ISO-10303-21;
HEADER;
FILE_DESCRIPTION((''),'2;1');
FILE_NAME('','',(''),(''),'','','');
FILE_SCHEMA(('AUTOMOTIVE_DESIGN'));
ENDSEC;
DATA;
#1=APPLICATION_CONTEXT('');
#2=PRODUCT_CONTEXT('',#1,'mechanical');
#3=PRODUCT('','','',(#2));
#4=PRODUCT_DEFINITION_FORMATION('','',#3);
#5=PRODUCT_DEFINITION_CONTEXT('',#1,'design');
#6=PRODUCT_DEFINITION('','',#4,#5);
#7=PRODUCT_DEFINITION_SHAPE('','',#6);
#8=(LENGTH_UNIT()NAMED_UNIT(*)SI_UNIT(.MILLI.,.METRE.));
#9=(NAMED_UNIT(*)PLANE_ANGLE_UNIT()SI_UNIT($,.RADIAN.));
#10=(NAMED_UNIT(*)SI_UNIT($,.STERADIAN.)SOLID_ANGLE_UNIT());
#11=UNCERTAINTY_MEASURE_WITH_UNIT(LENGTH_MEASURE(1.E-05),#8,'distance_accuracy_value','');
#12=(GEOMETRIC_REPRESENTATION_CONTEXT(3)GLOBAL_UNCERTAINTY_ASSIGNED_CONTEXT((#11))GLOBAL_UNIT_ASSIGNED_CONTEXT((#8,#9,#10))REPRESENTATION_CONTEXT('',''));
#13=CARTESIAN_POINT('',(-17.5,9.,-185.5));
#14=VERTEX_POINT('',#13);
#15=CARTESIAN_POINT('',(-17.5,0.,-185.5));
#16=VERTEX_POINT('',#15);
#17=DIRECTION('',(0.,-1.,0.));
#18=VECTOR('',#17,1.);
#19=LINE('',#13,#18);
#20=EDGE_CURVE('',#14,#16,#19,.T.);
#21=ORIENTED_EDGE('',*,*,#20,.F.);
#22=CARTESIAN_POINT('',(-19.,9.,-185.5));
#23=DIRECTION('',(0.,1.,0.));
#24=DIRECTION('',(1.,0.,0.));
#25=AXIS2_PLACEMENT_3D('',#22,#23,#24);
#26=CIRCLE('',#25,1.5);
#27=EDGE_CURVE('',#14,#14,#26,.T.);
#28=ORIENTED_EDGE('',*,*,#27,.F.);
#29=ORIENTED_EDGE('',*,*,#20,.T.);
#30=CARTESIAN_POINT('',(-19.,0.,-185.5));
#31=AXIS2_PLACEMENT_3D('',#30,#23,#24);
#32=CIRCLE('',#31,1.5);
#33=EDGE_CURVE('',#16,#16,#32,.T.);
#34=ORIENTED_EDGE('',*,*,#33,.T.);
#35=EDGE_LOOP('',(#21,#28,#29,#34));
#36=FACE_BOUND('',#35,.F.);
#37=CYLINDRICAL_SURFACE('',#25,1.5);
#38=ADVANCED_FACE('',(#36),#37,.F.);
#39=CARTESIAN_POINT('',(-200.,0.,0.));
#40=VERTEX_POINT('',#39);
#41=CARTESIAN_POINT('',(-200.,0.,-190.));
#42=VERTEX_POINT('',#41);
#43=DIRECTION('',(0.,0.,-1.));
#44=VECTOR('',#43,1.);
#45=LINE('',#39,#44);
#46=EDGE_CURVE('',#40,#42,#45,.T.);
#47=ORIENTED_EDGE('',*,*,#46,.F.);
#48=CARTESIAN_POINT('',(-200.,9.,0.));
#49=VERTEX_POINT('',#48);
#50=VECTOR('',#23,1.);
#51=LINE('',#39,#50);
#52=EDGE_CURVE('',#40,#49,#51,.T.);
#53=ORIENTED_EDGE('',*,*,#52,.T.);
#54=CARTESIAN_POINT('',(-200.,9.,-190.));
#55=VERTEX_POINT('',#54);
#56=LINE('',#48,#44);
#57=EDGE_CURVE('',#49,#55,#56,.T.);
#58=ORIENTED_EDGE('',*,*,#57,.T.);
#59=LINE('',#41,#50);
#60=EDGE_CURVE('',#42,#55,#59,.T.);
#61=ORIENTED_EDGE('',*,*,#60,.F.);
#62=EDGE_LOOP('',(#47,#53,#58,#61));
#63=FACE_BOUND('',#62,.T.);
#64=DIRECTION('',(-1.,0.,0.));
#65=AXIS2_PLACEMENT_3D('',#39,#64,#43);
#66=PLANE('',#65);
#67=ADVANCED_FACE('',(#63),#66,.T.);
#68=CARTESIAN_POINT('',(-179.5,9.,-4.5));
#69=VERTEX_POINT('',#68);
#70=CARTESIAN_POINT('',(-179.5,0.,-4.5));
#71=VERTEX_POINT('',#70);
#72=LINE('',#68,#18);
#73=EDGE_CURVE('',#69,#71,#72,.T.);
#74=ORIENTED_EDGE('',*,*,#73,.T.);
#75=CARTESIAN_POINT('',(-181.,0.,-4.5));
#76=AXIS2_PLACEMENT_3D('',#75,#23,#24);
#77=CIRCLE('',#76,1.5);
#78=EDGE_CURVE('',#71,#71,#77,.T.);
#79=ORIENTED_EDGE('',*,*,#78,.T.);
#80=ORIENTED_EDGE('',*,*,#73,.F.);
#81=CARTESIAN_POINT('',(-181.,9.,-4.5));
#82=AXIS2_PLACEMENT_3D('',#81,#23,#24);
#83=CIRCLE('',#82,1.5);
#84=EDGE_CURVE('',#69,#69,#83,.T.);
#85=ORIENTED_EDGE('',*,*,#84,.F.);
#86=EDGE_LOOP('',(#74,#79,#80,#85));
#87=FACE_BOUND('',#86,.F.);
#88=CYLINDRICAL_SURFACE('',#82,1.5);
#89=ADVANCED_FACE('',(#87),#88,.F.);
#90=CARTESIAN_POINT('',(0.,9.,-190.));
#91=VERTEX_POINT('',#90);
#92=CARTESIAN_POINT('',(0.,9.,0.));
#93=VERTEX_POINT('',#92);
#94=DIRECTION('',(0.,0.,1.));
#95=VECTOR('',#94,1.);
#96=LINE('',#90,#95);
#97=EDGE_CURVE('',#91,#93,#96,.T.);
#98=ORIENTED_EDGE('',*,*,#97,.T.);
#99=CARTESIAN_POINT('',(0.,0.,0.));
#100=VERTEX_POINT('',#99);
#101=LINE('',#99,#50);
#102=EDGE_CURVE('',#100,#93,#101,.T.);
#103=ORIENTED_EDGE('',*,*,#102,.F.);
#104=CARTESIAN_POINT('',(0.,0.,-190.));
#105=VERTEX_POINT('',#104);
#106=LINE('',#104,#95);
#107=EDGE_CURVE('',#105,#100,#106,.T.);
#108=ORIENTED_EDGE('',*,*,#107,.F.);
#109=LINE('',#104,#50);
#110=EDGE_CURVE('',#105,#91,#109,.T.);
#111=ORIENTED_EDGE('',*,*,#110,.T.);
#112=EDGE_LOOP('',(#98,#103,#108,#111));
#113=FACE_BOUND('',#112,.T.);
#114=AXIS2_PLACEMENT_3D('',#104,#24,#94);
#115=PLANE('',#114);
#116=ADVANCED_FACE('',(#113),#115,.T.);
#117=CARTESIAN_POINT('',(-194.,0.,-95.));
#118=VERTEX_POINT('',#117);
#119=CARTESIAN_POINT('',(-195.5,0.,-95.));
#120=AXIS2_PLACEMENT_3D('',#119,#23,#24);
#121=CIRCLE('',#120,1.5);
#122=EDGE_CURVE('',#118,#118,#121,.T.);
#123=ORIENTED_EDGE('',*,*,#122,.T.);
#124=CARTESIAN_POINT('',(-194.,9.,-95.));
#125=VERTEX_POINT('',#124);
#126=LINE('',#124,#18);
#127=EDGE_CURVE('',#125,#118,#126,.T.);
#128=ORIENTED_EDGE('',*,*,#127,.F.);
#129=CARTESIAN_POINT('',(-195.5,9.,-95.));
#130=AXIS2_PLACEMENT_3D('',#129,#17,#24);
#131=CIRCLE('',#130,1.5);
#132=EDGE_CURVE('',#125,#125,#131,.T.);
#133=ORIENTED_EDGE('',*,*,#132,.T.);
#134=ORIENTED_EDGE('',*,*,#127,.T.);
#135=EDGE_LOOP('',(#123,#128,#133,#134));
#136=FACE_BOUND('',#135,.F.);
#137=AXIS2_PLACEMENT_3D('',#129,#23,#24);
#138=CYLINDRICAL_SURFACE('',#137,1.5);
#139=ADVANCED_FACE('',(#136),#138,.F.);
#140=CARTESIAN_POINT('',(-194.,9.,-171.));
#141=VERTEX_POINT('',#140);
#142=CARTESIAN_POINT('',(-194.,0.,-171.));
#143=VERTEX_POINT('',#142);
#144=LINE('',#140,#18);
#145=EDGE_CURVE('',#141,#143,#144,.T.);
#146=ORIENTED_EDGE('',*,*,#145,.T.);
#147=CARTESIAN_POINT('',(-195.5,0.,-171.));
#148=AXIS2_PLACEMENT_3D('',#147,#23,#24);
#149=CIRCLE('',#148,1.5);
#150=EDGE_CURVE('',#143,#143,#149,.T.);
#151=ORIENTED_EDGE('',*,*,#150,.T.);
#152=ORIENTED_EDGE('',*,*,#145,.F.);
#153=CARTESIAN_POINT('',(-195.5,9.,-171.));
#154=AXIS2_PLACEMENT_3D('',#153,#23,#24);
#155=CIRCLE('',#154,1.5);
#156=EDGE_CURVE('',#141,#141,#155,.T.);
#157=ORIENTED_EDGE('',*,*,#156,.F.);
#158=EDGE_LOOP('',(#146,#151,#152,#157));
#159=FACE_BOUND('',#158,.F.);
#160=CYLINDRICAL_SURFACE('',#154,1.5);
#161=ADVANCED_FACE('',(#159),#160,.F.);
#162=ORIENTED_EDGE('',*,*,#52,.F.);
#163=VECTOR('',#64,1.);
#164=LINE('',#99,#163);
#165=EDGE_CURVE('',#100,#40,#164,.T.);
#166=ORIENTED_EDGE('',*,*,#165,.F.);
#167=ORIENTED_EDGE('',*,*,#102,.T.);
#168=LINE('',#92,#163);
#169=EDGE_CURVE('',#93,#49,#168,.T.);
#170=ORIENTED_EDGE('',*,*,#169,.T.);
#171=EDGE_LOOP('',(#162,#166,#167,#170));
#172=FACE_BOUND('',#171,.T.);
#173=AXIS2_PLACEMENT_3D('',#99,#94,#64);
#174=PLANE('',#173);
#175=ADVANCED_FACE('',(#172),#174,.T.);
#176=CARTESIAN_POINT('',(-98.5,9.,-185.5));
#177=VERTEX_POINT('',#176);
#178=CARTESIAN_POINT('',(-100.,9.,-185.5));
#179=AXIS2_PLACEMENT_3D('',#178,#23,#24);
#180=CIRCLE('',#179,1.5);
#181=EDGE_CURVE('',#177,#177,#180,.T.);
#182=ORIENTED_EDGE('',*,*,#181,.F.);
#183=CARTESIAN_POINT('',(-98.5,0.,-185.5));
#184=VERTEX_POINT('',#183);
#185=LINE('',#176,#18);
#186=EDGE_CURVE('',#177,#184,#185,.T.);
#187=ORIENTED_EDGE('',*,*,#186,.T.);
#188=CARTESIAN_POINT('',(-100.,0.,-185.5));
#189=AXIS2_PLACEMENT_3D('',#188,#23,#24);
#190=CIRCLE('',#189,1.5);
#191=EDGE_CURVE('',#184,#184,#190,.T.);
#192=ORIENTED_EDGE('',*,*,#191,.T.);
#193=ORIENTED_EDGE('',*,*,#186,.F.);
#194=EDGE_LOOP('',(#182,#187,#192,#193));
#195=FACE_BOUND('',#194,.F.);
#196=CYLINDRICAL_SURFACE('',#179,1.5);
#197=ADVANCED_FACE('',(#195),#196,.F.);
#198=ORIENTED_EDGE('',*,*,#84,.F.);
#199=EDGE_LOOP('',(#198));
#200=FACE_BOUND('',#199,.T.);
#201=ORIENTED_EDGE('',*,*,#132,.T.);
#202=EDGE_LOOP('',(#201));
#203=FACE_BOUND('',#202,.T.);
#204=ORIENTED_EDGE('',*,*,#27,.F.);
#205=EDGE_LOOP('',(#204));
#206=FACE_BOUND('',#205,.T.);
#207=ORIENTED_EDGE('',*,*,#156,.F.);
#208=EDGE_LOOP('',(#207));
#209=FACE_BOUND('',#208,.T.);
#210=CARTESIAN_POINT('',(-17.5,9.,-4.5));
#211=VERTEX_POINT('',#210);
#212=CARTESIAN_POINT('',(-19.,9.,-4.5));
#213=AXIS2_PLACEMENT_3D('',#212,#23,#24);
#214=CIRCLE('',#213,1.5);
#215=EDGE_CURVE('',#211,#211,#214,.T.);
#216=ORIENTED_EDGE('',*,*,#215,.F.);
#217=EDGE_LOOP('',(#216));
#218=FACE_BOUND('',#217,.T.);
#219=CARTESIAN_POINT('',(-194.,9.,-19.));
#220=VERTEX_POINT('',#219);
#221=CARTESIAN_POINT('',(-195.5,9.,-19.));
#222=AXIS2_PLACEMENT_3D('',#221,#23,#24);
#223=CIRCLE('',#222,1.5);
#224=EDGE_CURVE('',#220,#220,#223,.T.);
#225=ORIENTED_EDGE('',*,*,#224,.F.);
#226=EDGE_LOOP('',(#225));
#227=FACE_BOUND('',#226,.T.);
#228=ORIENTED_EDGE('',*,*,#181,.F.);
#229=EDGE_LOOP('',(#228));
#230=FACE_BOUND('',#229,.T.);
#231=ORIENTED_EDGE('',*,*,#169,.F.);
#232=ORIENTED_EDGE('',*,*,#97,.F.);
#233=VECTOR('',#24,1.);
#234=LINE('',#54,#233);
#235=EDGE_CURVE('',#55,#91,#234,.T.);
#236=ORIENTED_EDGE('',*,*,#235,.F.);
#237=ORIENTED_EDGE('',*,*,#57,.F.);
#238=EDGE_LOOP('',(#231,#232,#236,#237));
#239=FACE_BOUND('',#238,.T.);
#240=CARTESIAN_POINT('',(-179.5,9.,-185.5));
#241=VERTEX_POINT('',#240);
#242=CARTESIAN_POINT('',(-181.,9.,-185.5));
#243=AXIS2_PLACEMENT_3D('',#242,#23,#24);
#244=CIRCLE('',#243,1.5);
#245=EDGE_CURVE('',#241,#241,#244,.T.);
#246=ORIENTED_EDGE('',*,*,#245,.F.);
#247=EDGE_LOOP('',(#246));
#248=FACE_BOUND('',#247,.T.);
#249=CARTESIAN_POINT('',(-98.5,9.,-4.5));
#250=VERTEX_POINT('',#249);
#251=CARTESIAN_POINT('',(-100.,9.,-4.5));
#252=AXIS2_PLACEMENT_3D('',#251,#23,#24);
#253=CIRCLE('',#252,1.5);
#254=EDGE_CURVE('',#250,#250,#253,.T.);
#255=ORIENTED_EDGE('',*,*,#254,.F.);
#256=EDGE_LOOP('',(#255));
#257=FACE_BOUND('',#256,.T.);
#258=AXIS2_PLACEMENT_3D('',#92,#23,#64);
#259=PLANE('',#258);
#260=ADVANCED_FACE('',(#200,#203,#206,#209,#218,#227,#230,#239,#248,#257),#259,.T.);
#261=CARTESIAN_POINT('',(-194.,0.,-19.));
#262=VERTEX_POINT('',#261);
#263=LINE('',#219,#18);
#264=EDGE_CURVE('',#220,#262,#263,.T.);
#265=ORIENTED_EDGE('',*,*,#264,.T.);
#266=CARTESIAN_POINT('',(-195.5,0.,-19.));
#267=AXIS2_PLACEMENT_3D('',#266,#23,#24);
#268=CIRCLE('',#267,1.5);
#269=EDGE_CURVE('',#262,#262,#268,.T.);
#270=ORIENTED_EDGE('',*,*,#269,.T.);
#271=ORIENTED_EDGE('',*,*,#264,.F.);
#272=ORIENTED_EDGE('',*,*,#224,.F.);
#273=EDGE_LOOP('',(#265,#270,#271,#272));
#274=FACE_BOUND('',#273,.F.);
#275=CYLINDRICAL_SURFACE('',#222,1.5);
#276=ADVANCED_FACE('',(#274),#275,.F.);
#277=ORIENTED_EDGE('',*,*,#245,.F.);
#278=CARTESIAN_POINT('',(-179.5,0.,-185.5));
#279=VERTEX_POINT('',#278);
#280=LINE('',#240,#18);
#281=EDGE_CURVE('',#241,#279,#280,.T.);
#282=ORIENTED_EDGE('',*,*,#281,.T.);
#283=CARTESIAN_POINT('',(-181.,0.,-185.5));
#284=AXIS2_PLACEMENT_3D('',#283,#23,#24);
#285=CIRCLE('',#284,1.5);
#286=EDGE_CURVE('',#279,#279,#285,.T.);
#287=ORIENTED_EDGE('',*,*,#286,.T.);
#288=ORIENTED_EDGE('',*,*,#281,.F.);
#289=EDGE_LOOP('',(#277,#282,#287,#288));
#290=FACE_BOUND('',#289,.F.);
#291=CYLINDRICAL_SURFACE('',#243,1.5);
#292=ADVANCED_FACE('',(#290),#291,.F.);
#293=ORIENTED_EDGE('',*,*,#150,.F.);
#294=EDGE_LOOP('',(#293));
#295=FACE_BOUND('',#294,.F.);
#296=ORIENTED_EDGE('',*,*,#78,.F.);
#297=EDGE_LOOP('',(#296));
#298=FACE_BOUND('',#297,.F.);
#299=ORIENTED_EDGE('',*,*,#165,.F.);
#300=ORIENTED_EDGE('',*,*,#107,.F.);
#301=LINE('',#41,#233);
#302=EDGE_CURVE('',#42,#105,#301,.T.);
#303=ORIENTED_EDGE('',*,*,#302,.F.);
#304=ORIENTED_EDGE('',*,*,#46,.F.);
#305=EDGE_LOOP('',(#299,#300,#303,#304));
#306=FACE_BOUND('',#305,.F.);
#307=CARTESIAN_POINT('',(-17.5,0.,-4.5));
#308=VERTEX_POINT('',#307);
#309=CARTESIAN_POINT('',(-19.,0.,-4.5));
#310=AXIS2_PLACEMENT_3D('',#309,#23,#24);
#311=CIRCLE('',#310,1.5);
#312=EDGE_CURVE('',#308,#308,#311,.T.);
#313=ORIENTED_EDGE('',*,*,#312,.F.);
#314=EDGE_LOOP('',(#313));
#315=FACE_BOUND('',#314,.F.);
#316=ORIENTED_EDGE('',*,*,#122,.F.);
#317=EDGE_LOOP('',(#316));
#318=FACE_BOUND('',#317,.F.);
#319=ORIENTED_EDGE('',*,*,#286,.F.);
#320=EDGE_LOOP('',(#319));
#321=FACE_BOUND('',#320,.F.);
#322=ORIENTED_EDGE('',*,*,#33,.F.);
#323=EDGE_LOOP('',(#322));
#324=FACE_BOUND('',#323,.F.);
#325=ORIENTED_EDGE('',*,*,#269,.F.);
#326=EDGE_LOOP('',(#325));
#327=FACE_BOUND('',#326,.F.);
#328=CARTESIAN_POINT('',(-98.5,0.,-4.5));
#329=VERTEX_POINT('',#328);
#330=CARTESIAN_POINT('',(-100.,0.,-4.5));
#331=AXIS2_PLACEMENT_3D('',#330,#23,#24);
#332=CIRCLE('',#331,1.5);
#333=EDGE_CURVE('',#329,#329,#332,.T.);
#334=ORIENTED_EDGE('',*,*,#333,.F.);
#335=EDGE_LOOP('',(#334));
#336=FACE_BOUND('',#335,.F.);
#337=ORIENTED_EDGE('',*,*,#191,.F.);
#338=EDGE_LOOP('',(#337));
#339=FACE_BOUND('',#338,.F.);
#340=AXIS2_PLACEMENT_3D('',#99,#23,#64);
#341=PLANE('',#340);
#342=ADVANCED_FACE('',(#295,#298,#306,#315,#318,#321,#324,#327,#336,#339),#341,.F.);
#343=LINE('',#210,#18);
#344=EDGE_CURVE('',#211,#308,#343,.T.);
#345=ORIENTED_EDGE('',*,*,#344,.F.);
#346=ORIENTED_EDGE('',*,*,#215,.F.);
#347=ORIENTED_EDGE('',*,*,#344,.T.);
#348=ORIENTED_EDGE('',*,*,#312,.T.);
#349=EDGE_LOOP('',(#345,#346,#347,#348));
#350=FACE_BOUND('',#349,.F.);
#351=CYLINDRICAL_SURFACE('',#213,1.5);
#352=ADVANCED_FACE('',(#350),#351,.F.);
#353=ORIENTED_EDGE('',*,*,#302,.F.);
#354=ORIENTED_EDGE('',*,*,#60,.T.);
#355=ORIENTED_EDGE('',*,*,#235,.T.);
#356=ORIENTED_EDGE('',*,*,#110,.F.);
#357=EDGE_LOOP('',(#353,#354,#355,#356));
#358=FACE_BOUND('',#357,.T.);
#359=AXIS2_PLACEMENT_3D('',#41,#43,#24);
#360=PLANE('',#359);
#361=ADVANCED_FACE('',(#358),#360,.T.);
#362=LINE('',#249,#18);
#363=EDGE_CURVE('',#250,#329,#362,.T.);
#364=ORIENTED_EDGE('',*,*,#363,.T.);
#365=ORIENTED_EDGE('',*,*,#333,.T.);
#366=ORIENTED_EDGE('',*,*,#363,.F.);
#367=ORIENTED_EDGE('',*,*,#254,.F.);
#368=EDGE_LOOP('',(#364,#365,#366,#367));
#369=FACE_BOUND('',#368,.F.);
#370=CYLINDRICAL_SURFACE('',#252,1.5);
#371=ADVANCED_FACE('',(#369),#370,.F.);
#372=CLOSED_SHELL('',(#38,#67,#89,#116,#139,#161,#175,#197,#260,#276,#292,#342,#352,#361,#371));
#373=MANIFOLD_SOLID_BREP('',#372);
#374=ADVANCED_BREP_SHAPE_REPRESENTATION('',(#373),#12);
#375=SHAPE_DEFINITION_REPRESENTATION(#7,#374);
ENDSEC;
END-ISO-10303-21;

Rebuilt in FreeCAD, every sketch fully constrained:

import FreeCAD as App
import Part
import Sketcher
Q = App.Units.Quantity


def add_polygon(sketch, points):
    """Adds a closed chain of lines whose ends are joined by coincident constraints."""
    first, n = sketch.GeometryCount, len(points)
    for a, b in zip(points, points[1:] + points[:1]):
        sketch.addGeometry(Part.LineSegment(App.Vector(*a, 0), App.Vector(*b, 0)), False)
    for i in range(n):
        sketch.addConstraint(Sketcher.Constraint("Coincident", first + i, 2, first + (i + 1) % n, 1))

doc = App.newDocument("Part")
params = doc.addObject("Spreadsheet::Sheet", "Params")
for row, (alias, value) in enumerate([
    ("sketch1_width", "200 mm"),
    ("sketch1_height", "190 mm"),
    ("pad1_length", "9 mm"),
    ("sketch2_diameter", "3 mm"),
    ("pocket1_length", "10 mm"),
    ("sketch3_diameter", "3 mm"),
    ("pocket2_length", "10 mm"),
], start=1):
    params.set(f"A{row}", alias)
    params.set(f"B{row}", "=" + value)
    params.setAlias(f"B{row}", alias)

body = doc.addObject("PartDesign::Body", "Body")

# Sketch on XZ plane
sketch1 = doc.addObject("Sketcher::SketchObject", "Sketch")
body.addObject(sketch1)
sketch1.AttachmentSupport = (doc.XZ_Plane, [""])
sketch1.MapMode = "FlatFace"
add_polygon(sketch1, [(-200, 0), (0, 0), (0, -190), (-200, -190)])  # lines 0-3
sketch1.addConstraint(Sketcher.Constraint("Horizontal", 0))
sketch1.addConstraint(Sketcher.Constraint("Vertical", 1))
sketch1.addConstraint(Sketcher.Constraint("Horizontal", 2))
sketch1.addConstraint(Sketcher.Constraint("Vertical", 3))
sketch1.addConstraint(Sketcher.Constraint("Coincident", 0, 2, -1, 1))
sketch1.addConstraint(Sketcher.Constraint("DistanceX", 0, 1, 0, 2, Q("200 mm")))
sketch1.addConstraint(Sketcher.Constraint("DistanceY", 1, 2, 1, 1, Q("190 mm")))
sketch1.setExpression("Constraints[9]", "Params.sketch1_width")
sketch1.setExpression("Constraints[10]", "Params.sketch1_height")
pad1 = doc.addObject("PartDesign::Pad", "Pad")
body.addObject(pad1)
pad1.Profile = sketch1
pad1.setExpression("Length", "Params.pad1_length")
pad1.Reversed = True

# Sketch on XZ plane
sketch2 = doc.addObject("Sketcher::SketchObject", "Sketch001")
body.addObject(sketch2)
sketch2.AttachmentSupport = (doc.XZ_Plane, [""])
sketch2.MapMode = "FlatFace"
sketch2.AttachmentOffset = App.Placement(App.Vector(0, 0, -9), App.Rotation())
sketch2.addGeometry(Part.Circle(App.Vector(-19, -4.5, 0), App.Vector(0, 0, 1), 1.5), False)
sketch2.addGeometry(Part.Circle(App.Vector(-100, -4.5, 0), App.Vector(0, 0, 1), 1.5), False)
sketch2.addGeometry(Part.Circle(App.Vector(-181, -4.5, 0), App.Vector(0, 0, 1), 1.5), False)
sketch2.addGeometry(Part.Circle(App.Vector(-19, -185.5, 0), App.Vector(0, 0, 1), 1.5), False)
sketch2.addGeometry(Part.Circle(App.Vector(-100, -185.5, 0), App.Vector(0, 0, 1), 1.5), False)
sketch2.addGeometry(Part.Circle(App.Vector(-181, -185.5, 0), App.Vector(0, 0, 1), 1.5), False)
sketch2.addConstraint(Sketcher.Constraint("Equal", 0, 1))
sketch2.addConstraint(Sketcher.Constraint("Equal", 1, 2))
sketch2.addConstraint(Sketcher.Constraint("Equal", 2, 3))
sketch2.addConstraint(Sketcher.Constraint("Equal", 3, 4))
sketch2.addConstraint(Sketcher.Constraint("Equal", 4, 5))
sketch2.addConstraint(Sketcher.Constraint("Horizontal", 0, 3, 1, 3))
sketch2.addConstraint(Sketcher.Constraint("Horizontal", 1, 3, 2, 3))
sketch2.addConstraint(Sketcher.Constraint("Horizontal", 3, 3, 4, 3))
sketch2.addConstraint(Sketcher.Constraint("Horizontal", 4, 3, 5, 3))
sketch2.addConstraint(Sketcher.Constraint("Vertical", 0, 3, 3, 3))
sketch2.addConstraint(Sketcher.Constraint("Vertical", 1, 3, 4, 3))
sketch2.addConstraint(Sketcher.Constraint("Vertical", 2, 3, 5, 3))
sketch2.addConstraint(Sketcher.Constraint("Diameter", 0, Q("3 mm")))
sketch2.addConstraint(Sketcher.Constraint("DistanceX", 0, 3, -1, 1, Q("19 mm")))
sketch2.addConstraint(Sketcher.Constraint("DistanceX", 1, 3, -1, 1, Q("100 mm")))
sketch2.addConstraint(Sketcher.Constraint("DistanceX", 2, 3, -1, 1, Q("181 mm")))
sketch2.addConstraint(Sketcher.Constraint("DistanceY", 3, 3, 0, 3, Q("181 mm")))
sketch2.addConstraint(Sketcher.Constraint("DistanceY", 0, 3, -1, 1, Q("4.5 mm")))
sketch2.setExpression("Constraints[12]", "Params.sketch2_diameter")
pocket1 = doc.addObject("PartDesign::Pocket", "Pocket")
body.addObject(pocket1)
pocket1.Profile = sketch2
pocket1.setExpression("Length", "Params.pocket1_length")
pocket1.Reversed = True

# Sketch on XZ plane
sketch3 = doc.addObject("Sketcher::SketchObject", "Sketch002")
body.addObject(sketch3)
sketch3.AttachmentSupport = (doc.XZ_Plane, [""])
sketch3.MapMode = "FlatFace"
sketch3.AttachmentOffset = App.Placement(App.Vector(0, 0, -9), App.Rotation())
sketch3.addGeometry(Part.Circle(App.Vector(-195.5, -95, 0), App.Vector(0, 0, 1), 1.5), False)
sketch3.addGeometry(Part.Circle(App.Vector(-195.5, -171, 0), App.Vector(0, 0, 1), 1.5), False)
sketch3.addGeometry(Part.Circle(App.Vector(-195.5, -19, 0), App.Vector(0, 0, 1), 1.5), False)
sketch3.addConstraint(Sketcher.Constraint("Equal", 0, 1))
sketch3.addConstraint(Sketcher.Constraint("Equal", 1, 2))
sketch3.addConstraint(Sketcher.Constraint("Vertical", 0, 3, 1, 3))
sketch3.addConstraint(Sketcher.Constraint("Vertical", 1, 3, 2, 3))
sketch3.addConstraint(Sketcher.Constraint("Diameter", 0, Q("3 mm")))
sketch3.addConstraint(Sketcher.Constraint("DistanceY", 2, 3, -1, 1, Q("19 mm")))
sketch3.addConstraint(Sketcher.Constraint("DistanceY", 0, 3, -1, 1, Q("95 mm")))
sketch3.addConstraint(Sketcher.Constraint("DistanceY", 1, 3, -1, 1, Q("171 mm")))
sketch3.addConstraint(Sketcher.Constraint("DistanceX", 0, 3, -1, 1, Q("195.5 mm")))
sketch3.setExpression("Constraints[4]", "Params.sketch3_diameter")
pocket2 = doc.addObject("PartDesign::Pocket", "Pocket001")
body.addObject(pocket2)
pocket2.Profile = sketch3
pocket2.setExpression("Length", "Params.pocket2_length")
pocket2.Reversed = True

doc.recompute()
